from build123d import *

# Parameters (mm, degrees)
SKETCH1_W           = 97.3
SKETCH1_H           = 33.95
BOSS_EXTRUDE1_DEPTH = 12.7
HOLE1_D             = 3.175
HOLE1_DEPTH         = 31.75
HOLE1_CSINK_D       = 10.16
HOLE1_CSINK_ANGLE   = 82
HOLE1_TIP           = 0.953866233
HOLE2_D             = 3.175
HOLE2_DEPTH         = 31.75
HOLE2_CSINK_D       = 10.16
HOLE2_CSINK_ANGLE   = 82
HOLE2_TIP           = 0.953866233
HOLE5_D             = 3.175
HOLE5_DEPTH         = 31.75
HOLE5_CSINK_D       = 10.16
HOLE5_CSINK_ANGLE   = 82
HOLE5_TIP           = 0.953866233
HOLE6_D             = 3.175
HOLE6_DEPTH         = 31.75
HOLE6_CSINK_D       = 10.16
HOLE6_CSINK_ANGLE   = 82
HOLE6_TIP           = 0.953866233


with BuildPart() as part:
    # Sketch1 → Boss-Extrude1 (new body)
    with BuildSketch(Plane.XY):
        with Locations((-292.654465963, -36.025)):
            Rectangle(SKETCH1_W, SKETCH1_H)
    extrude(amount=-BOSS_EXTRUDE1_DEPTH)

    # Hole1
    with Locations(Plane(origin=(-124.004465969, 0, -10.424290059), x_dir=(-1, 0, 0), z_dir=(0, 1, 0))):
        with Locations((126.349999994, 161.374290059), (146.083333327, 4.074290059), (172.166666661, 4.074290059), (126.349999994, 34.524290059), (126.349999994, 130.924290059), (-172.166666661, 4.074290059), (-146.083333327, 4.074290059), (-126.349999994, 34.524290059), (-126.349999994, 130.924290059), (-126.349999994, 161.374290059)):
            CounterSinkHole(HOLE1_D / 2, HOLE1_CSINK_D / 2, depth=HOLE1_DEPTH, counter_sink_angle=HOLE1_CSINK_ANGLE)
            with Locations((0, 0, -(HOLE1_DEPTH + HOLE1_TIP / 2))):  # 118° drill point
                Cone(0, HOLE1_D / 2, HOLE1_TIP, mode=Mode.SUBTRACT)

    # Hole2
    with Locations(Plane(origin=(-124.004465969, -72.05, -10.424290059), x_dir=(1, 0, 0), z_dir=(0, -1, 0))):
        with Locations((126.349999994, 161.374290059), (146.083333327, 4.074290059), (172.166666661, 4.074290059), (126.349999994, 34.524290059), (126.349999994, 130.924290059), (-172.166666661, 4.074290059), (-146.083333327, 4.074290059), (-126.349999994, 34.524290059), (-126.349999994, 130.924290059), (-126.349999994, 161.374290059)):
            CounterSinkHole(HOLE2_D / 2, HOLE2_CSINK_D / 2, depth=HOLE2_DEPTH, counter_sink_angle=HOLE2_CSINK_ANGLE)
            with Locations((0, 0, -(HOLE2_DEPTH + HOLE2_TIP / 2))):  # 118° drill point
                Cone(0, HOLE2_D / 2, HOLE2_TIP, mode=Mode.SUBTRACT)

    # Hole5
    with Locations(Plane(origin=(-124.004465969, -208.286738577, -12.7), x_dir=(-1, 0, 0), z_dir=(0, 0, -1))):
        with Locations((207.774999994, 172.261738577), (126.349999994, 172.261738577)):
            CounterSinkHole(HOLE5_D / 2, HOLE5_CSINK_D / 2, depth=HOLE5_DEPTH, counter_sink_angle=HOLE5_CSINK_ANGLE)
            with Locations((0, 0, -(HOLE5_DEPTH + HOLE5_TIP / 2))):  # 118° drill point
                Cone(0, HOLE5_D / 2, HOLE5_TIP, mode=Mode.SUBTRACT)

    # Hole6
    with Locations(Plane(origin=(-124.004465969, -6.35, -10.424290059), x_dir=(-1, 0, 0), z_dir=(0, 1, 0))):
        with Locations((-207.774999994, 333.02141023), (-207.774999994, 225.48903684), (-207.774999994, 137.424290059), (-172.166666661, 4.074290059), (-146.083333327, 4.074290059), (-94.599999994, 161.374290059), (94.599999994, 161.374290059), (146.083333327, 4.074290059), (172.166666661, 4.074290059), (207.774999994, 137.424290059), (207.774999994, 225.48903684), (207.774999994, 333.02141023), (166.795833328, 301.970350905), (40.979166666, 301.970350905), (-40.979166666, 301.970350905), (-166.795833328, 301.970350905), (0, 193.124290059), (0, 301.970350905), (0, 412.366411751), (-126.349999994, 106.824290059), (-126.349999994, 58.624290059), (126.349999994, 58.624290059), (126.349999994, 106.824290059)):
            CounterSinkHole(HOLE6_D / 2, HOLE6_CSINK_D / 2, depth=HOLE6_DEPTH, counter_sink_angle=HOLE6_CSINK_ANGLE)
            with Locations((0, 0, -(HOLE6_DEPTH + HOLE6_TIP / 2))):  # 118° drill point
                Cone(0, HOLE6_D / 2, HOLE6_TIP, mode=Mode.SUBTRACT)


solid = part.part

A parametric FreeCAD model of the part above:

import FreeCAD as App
import Part
import Sketcher
Q = App.Units.Quantity


def add_polygon(sketch, points):
    """Adds a closed chain of lines whose ends are joined by coincident constraints."""
    first, n = sketch.GeometryCount, len(points)
    for a, b in zip(points, points[1:] + points[:1]):
        sketch.addGeometry(Part.LineSegment(App.Vector(*a, 0), App.Vector(*b, 0)), False)
    for i in range(n):
        sketch.addConstraint(Sketcher.Constraint("Coincident", first + i, 2, first + (i + 1) % n, 1))

doc = App.newDocument("Part")
body = doc.addObject("PartDesign::Body", "Body")

# Sketch on XY plane
sketch1 = body.newObject("Sketcher::SketchObject", "Sketch")
sketch1.AttachmentSupport = (doc.getObject("XY_Plane"), [""])
sketch1.MapMode = "FlatFace"
add_polygon(sketch1, [(-341, -19), (-341, -53), (-244, -53), (-244, -19)])  # lines 0-3
sketch1.addConstraint([
    Sketcher.Constraint("Vertical", 0),
    Sketcher.Constraint("Horizontal", 1),
    Sketcher.Constraint("Vertical", 2),
    Sketcher.Constraint("Horizontal", 3),
    Sketcher.Constraint("DistanceY", 2, 2, -1, 1, Q("0.75 in")),
    Sketcher.Constraint("DistanceX", 1, 1, 1, 2, 97.3),
    Sketcher.Constraint("DistanceY", 0, 2, 0, 1, 33.95),
    Sketcher.Constraint("DistanceX", 0, 2, -1, 1, 341.304466),
])
pad1 = body.newObject("PartDesign::Pad", "Pad")
pad1.Profile = sketch1
pad1.Length = Q("0.5 in")
pad1.Reversed = True

# Sketch on XZ plane
sketch2 = body.newObject("Sketcher::SketchObject", "Sketch001")
sketch2.AttachmentSupport = (doc.getObject("XZ_Plane"), [""])
sketch2.MapMode = "FlatFace"
sketch2.addGeometry([
    Part.Circle(App.Vector(-250.4, 150.9, 0), App.Vector(0, 0, 1), 1.6),  # 0
    Part.Circle(App.Vector(-270.1, -6.3, 0), App.Vector(0, 0, 1), 1.6),  # 1
    Part.Circle(App.Vector(-296.2, -6.3, 0), App.Vector(0, 0, 1), 1.6),  # 2
    Part.Circle(App.Vector(-250.4, 24.1, 0), App.Vector(0, 0, 1), 1.6),  # 3
    Part.Circle(App.Vector(-250.4, 120.5, 0), App.Vector(0, 0, 1), 1.6),  # 4
    Part.Circle(App.Vector(48.2, -6.3, 0), App.Vector(0, 0, 1), 1.6),  # 5
    Part.Circle(App.Vector(22.1, -6.3, 0), App.Vector(0, 0, 1), 1.6),  # 6
    Part.Circle(App.Vector(2.3, 24.1, 0), App.Vector(0, 0, 1), 1.6),  # 7
    Part.Circle(App.Vector(2.3, 120.5, 0), App.Vector(0, 0, 1), 1.6),  # 8
    Part.Circle(App.Vector(2.3, 150.9, 0), App.Vector(0, 0, 1), 1.6),  # 9
], False)
sketch2.addConstraint([
    Sketcher.Constraint("Equal", 0, 1),
    Sketcher.Constraint("Equal", 1, 2),
    Sketcher.Constraint("Equal", 2, 3),
    Sketcher.Constraint("Equal", 3, 4),
    Sketcher.Constraint("Equal", 4, 5),
    Sketcher.Constraint("Equal", 5, 6),
    Sketcher.Constraint("Equal", 6, 7),
    Sketcher.Constraint("Equal", 7, 8),
    Sketcher.Constraint("Equal", 8, 9),
    Sketcher.Constraint("Horizontal", 1, 3, 2, 3),
    Sketcher.Constraint("Horizontal", 2, 3, 5, 3),
    Sketcher.Constraint("Horizontal", 5, 3, 6, 3),
    Sketcher.Constraint("Horizontal", 3, 3, 7, 3),
    Sketcher.Constraint("Horizontal", 4, 3, 8, 3),
    Sketcher.Constraint("Horizontal", 0, 3, 9, 3),
    Sketcher.Constraint("Vertical", 0, 3, 3, 3),
    Sketcher.Constraint("Vertical", 3, 3, 4, 3),
    Sketcher.Constraint("Vertical", 7, 3, 8, 3),
    Sketcher.Constraint("Vertical", 8, 3, 9, 3),
    Sketcher.Constraint("Diameter", 0, Q("0.125 in")),
    Sketcher.Constraint("DistanceY", 1, 3, -1, 1, Q("0.25 in")),
    Sketcher.Constraint("DistanceY", -1, 1, 0, 3, 150.95),
    Sketcher.Constraint("DistanceX", 1, 3, -1, 1, 270.087799),
    Sketcher.Constraint("DistanceY", -1, 1, 3, 3, 24.1),
    Sketcher.Constraint("DistanceY", -1, 1, 4, 3, 120.5),
    Sketcher.Constraint("DistanceX", -1, 1, 5, 3, 48.162201),
    Sketcher.Constraint("DistanceX", 3, 3, 7, 3, 252.7),
    Sketcher.Constraint("DistanceX", 0, 3, -1, 1, 250.354466),
    Sketcher.Constraint("DistanceX", 2, 3, -1, 1, 296.171133),
    Sketcher.Constraint("DistanceX", -1, 1, 6, 3, 22.078867),
])
doc.recompute()
hole = body.newObject("PartDesign::Hole", "Hole")
hole.Profile = sketch2
hole.ThreadType = "None"
hole.Diameter = Q("0.125 in")
hole.DepthType = "Dimension"
hole.Depth = Q("1.25 in")
hole.DrillPoint = "Angled"
hole.DrillPointAngle = 118
hole.HoleCutType = "Countersink"
hole.HoleCutDiameter = Q("0.4 in")
hole.HoleCutCountersinkAngle = 82
hole.Reversed = True

# Sketch on XZ plane
sketch3 = body.newObject("Sketcher::SketchObject", "Sketch002")
sketch3.AttachmentSupport = (doc.getObject("XZ_Plane"), [""])
sketch3.MapMode = "FlatFace"
sketch3.AttachmentOffset = App.Placement(App.Vector(0, 0, 72.05), App.Rotation())
sketch3.addGeometry([
    Part.Circle(App.Vector(2.3, 150.9, 0), App.Vector(0, 0, 1), 1.6),  # 0
    Part.Circle(App.Vector(22.1, -6.3, 0), App.Vector(0, 0, 1), 1.6),  # 1
    Part.Circle(App.Vector(48.2, -6.3, 0), App.Vector(0, 0, 1), 1.6),  # 2
    Part.Circle(App.Vector(2.3, 24.1, 0), App.Vector(0, 0, 1), 1.6),  # 3
    Part.Circle(App.Vector(2.3, 120.5, 0), App.Vector(0, 0, 1), 1.6),  # 4
    Part.Circle(App.Vector(-296.2, -6.3, 0), App.Vector(0, 0, 1), 1.6),  # 5
    Part.Circle(App.Vector(-270.1, -6.3, 0), App.Vector(0, 0, 1), 1.6),  # 6
    Part.Circle(App.Vector(-250.4, 24.1, 0), App.Vector(0, 0, 1), 1.6),  # 7
    Part.Circle(App.Vector(-250.4, 120.5, 0), App.Vector(0, 0, 1), 1.6),  # 8
    Part.Circle(App.Vector(-250.4, 150.9, 0), App.Vector(0, 0, 1), 1.6),  # 9
], False)
sketch3.addConstraint([
    Sketcher.Constraint("Equal", 0, 1),
    Sketcher.Constraint("Equal", 1, 2),
    Sketcher.Constraint("Equal", 2, 3),
    Sketcher.Constraint("Equal", 3, 4),
    Sketcher.Constraint("Equal", 4, 5),
    Sketcher.Constraint("Equal", 5, 6),
    Sketcher.Constraint("Equal", 6, 7),
    Sketcher.Constraint("Equal", 7, 8),
    Sketcher.Constraint("Equal", 8, 9),
    Sketcher.Constraint("Horizontal", 1, 3, 2, 3),
    Sketcher.Constraint("Horizontal", 2, 3, 5, 3),
    Sketcher.Constraint("Horizontal", 5, 3, 6, 3),
    Sketcher.Constraint("Horizontal", 3, 3, 7, 3),
    Sketcher.Constraint("Horizontal", 4, 3, 8, 3),
    Sketcher.Constraint("Horizontal", 0, 3, 9, 3),
    Sketcher.Constraint("Vertical", 0, 3, 3, 3),
    Sketcher.Constraint("Vertical", 3, 3, 4, 3),
    Sketcher.Constraint("Vertical", 7, 3, 8, 3),
    Sketcher.Constraint("Vertical", 8, 3, 9, 3),
    Sketcher.Constraint("Diameter", 0, Q("0.125 in")),
    Sketcher.Constraint("DistanceY", 1, 3, -1, 1, Q("0.25 in")),
    Sketcher.Constraint("DistanceY", -1, 1, 0, 3, 150.95),
    Sketcher.Constraint("DistanceX", -1, 1, 2, 3, 48.162201),
    Sketcher.Constraint("DistanceY", -1, 1, 3, 3, 24.1),
    Sketcher.Constraint("DistanceY", -1, 1, 4, 3, 120.5),
    Sketcher.Constraint("DistanceX", 6, 3, -1, 1, 270.087799),
    Sketcher.Constraint("DistanceX", 5, 3, 1, 3, 318.25),
    Sketcher.Constraint("DistanceX", 7, 3, 3, 3, 252.7),
    Sketcher.Constraint("DistanceX", -1, 1, 0, 3, 2.345534),
    Sketcher.Constraint("DistanceX", -1, 1, 1, 3, 22.078867),
])
doc.recompute()
hole2 = body.newObject("PartDesign::Hole", "Hole001")
hole2.Profile = sketch3
hole2.ThreadType = "None"
hole2.Diameter = Q("0.125 in")
hole2.DepthType = "Dimension"
hole2.Depth = Q("1.25 in")
hole2.DrillPoint = "Angled"
hole2.DrillPointAngle = 118
hole2.HoleCutType = "Countersink"
hole2.HoleCutDiameter = Q("0.4 in")
hole2.HoleCutCountersinkAngle = 82

# Sketch on XY plane
sketch4 = body.newObject("Sketcher::SketchObject", "Sketch003")
sketch4.AttachmentSupport = (doc.getObject("XY_Plane"), [""])
sketch4.MapMode = "FlatFace"
sketch4.AttachmentOffset = App.Placement(App.Vector(0, 0, -0.5 * 25.4), App.Rotation())
sketch4.addGeometry([
    Part.Circle(App.Vector(-331.8, -36, 0), App.Vector(0, 0, 1), 1.6),
    Part.Circle(App.Vector(-250.4, -36, 0), App.Vector(0, 0, 1), 1.6),
], False)
sketch4.addConstraint([
    Sketcher.Constraint("Equal", 0, 1),
    Sketcher.Constraint("Horizontal", 0, 3, 1, 3),
    Sketcher.Constraint("Diameter", 0, Q("0.125 in")),
    Sketcher.Constraint("DistanceY", 0, 3, -1, 1, 36.025),
    Sketcher.Constraint("DistanceX", 0, 3, 1, 3, 81.425),
    Sketcher.Constraint("DistanceX", 0, 3, -1, 1, 331.779466),
])
doc.recompute()
hole3 = body.newObject("PartDesign::Hole", "Hole002")
hole3.Profile = sketch4
hole3.ThreadType = "None"
hole3.Diameter = Q("0.125 in")
hole3.DepthType = "Dimension"
hole3.Depth = Q("1.25 in")
hole3.DrillPoint = "Angled"
hole3.DrillPointAngle = 118
hole3.HoleCutType = "Countersink"
hole3.HoleCutDiameter = Q("0.4 in")
hole3.HoleCutCountersinkAngle = 82
hole3.Reversed = True

# Sketch on XZ plane
sketch5 = body.newObject("Sketcher::SketchObject", "Sketch004")
sketch5.AttachmentSupport = (doc.getObject("XZ_Plane"), [""])
sketch5.MapMode = "FlatFace"
sketch5.AttachmentOffset = App.Placement(App.Vector(0, 0, 0.25 * 25.4), App.Rotation())
sketch5.addGeometry([
    Part.Circle(App.Vector(83.8, 322.6, 0), App.Vector(0, 0, 1), 1.6),  # 0
    Part.Circle(App.Vector(83.8, 215.1, 0), App.Vector(0, 0, 1), 1.6),  # 1
    Part.Circle(App.Vector(83.8, 127, 0), App.Vector(0, 0, 1), 1.6),  # 2
    Part.Circle(App.Vector(48.2, -6.3, 0), App.Vector(0, 0, 1), 1.6),  # 3
    Part.Circle(App.Vector(22.1, -6.3, 0), App.Vector(0, 0, 1), 1.6),  # 4
    Part.Circle(App.Vector(-29.4, 150.9, 0), App.Vector(0, 0, 1), 1.6),  # 5
    Part.Circle(App.Vector(-218.6, 150.9, 0), App.Vector(0, 0, 1), 1.6),  # 6
    Part.Circle(App.Vector(-270.1, -6.3, 0), App.Vector(0, 0, 1), 1.6),  # 7
    Part.Circle(App.Vector(-296.2, -6.3, 0), App.Vector(0, 0, 1), 1.6),  # 8
    Part.Circle(App.Vector(-331.8, 127, 0), App.Vector(0, 0, 1), 1.6),  # 9
    Part.Circle(App.Vector(-331.8, 215.1, 0), App.Vector(0, 0, 1), 1.6),  # 10
    Part.Circle(App.Vector(-331.8, 322.6, 0), App.Vector(0, 0, 1), 1.6),  # 11
    Part.Circle(App.Vector(-290.8, 291.5, 0), App.Vector(0, 0, 1), 1.6),  # 12
    Part.Circle(App.Vector(-165, 291.5, 0), App.Vector(0, 0, 1), 1.6),  # 13
    Part.Circle(App.Vector(-83, 291.5, 0), App.Vector(0, 0, 1), 1.6),  # 14
    Part.Circle(App.Vector(42.8, 291.5, 0), App.Vector(0, 0, 1), 1.6),  # 15
    Part.Circle(App.Vector(-124, 182.7, 0), App.Vector(0, 0, 1), 1.6),  # 16
    Part.Circle(App.Vector(-124, 291.5, 0), App.Vector(0, 0, 1), 1.6),  # 17
    Part.Circle(App.Vector(-124, 401.9, 0), App.Vector(0, 0, 1), 1.6),  # 18
    Part.Circle(App.Vector(2.3, 96.4, 0), App.Vector(0, 0, 1), 1.6),  # 19
    Part.Circle(App.Vector(2.3, 48.2, 0), App.Vector(0, 0, 1), 1.6),  # 20
    Part.Circle(App.Vector(-250.4, 48.2, 0), App.Vector(0, 0, 1), 1.6),  # 21
    Part.Circle(App.Vector(-250.4, 96.4, 0), App.Vector(0, 0, 1), 1.6),  # 22
], False)
sketch5.addConstraint([
    Sketcher.Constraint("Equal", 0, 1),
    Sketcher.Constraint("Equal", 1, 2),
    Sketcher.Constraint("Equal", 2, 3),
    Sketcher.Constraint("Equal", 3, 4),
    Sketcher.Constraint("Equal", 4, 5),
    Sketcher.Constraint("Equal", 5, 6),
    Sketcher.Constraint("Equal", 6, 7),
    Sketcher.Constraint("Equal", 7, 8),
    Sketcher.Constraint("Equal", 8, 9),
    Sketcher.Constraint("Equal", 9, 10),
    Sketcher.Constraint("Equal", 10, 11),
    Sketcher.Constraint("Equal", 11, 12),
    Sketcher.Constraint("Equal", 12, 13),
    Sketcher.Constraint("Equal", 13, 14),
    Sketcher.Constraint("Equal", 14, 15),
    Sketcher.Constraint("Equal", 15, 16),
    Sketcher.Constraint("Equal", 16, 17),
    Sketcher.Constraint("Equal", 17, 18),
    Sketcher.Constraint("Equal", 18, 19),
    Sketcher.Constraint("Equal", 19, 20),
    Sketcher.Constraint("Equal", 20, 21),
    Sketcher.Constraint("Equal", 21, 22),
    Sketcher.Constraint("Horizontal", 3, 3, 4, 3),
    Sketcher.Constraint("Horizontal", 5, 3, 6, 3),
    Sketcher.Constraint("Horizontal", 4, 3, 7, 3),
    Sketcher.Constraint("Horizontal", 7, 3, 8, 3),
    Sketcher.Constraint("Horizontal", 2, 3, 9, 3),
    Sketcher.Constraint("Horizontal", 1, 3, 10, 3),
    Sketcher.Constraint("Horizontal", 0, 3, 11, 3),
    Sketcher.Constraint("Horizontal", 12, 3, 13, 3),
    Sketcher.Constraint("Horizontal", 13, 3, 14, 3),
    Sketcher.Constraint("Horizontal", 14, 3, 15, 3),
    Sketcher.Constraint("Horizontal", 15, 3, 17, 3),
    Sketcher.Constraint("Horizontal", 20, 3, 21, 3),
    Sketcher.Constraint("Horizontal", 19, 3, 22, 3),
    Sketcher.Constraint("Vertical", 0, 3, 1, 3),
    Sketcher.Constraint("Vertical", 1, 3, 2, 3),
    Sketcher.Constraint("Vertical", 9, 3, 10, 3),
    Sketcher.Constraint("Vertical", 10, 3, 11, 3),
    Sketcher.Constraint("Vertical", 16, 3, 17, 3),
    Sketcher.Constraint("Vertical", 17, 3, 18, 3),
    Sketcher.Constraint("Vertical", 19, 3, 20, 3),
    Sketcher.Constraint("Vertical", 21, 3, 22, 3),
    Sketcher.Constraint("Diameter", 0, Q("0.125 in")),
    Sketcher.Constraint("DistanceY", -1, 1, 2, 3, Q("5 in")),
    Sketcher.Constraint("DistanceY", 3, 3, -1, 1, Q("0.25 in")),
    Sketcher.Constraint("DistanceY", 5, 3, 16, 3, Q("1.25 in")),
    Sketcher.Constraint("DistanceX", 5, 3, 19, 3, Q("1.25 in")),
    Sketcher.Constraint("DistanceX", 21, 3, 6, 3, Q("1.25 in")),
    Sketcher.Constraint("DistanceX", -1, 1, 3, 3, 48.162201),
    Sketcher.Constraint("DistanceY", -1, 1, 5, 3, 150.95),
    Sketcher.Constraint("DistanceX", 7, 3, -1, 1, 270.087799),
    Sketcher.Constraint("DistanceX", 12, 3, -1, 1, 290.800299),
    Sketcher.Constraint("DistanceX", 14, 3, -1, 1, 83.025299),
    Sketcher.Constraint("DistanceY", -1, 1, 19, 3, 96.4),
    Sketcher.Constraint("DistanceY", -1, 1, 20, 3, 48.2),
    Sketcher.Constraint("DistanceX", 5, 3, 2, 3, 113.175),
    Sketcher.Constraint("DistanceX", 6, 3, 5, 3, 189.2),
    Sketcher.Constraint("DistanceX", 8, 3, 4, 3, 318.25),
    Sketcher.Constraint("DistanceX", 9, 3, 6, 3, 113.175),
    Sketcher.Constraint("DistanceX", 16, 3, 5, 3, 94.6),
    Sketcher.Constraint("DistanceY", -1, 1, 0, 3, 322.59712),
    Sketcher.Constraint("DistanceY", -1, 1, 12, 3, 291.546061),
    Sketcher.Constraint("DistanceY", -1, 1, 18, 3, 401.942122),
    Sketcher.Constraint("DistanceX", -1, 1, 0, 3, 83.770534),
    Sketcher.Constraint("DistanceY", -1, 1, 1, 3, 215.064747),
    Sketcher.Constraint("DistanceX", -1, 1, 4, 3, 22.078867),
    Sketcher.Constraint("DistanceX", 13, 3, -1, 1, 164.983633),
    Sketcher.Constraint("DistanceX", -1, 1, 15, 3, 42.791367),
])
doc.recompute()
hole4 = body.newObject("PartDesign::Hole", "Hole003")
hole4.Profile = sketch5
hole4.ThreadType = "None"
hole4.Diameter = Q("0.125 in")
hole4.DepthType = "Dimension"
hole4.Depth = Q("1.25 in")
hole4.DrillPoint = "Angled"
hole4.DrillPointAngle = 118
hole4.HoleCutType = "Countersink"
hole4.HoleCutDiameter = Q("0.4 in")
hole4.HoleCutCountersinkAngle = 82
hole4.Reversed = True

doc.recompute()
